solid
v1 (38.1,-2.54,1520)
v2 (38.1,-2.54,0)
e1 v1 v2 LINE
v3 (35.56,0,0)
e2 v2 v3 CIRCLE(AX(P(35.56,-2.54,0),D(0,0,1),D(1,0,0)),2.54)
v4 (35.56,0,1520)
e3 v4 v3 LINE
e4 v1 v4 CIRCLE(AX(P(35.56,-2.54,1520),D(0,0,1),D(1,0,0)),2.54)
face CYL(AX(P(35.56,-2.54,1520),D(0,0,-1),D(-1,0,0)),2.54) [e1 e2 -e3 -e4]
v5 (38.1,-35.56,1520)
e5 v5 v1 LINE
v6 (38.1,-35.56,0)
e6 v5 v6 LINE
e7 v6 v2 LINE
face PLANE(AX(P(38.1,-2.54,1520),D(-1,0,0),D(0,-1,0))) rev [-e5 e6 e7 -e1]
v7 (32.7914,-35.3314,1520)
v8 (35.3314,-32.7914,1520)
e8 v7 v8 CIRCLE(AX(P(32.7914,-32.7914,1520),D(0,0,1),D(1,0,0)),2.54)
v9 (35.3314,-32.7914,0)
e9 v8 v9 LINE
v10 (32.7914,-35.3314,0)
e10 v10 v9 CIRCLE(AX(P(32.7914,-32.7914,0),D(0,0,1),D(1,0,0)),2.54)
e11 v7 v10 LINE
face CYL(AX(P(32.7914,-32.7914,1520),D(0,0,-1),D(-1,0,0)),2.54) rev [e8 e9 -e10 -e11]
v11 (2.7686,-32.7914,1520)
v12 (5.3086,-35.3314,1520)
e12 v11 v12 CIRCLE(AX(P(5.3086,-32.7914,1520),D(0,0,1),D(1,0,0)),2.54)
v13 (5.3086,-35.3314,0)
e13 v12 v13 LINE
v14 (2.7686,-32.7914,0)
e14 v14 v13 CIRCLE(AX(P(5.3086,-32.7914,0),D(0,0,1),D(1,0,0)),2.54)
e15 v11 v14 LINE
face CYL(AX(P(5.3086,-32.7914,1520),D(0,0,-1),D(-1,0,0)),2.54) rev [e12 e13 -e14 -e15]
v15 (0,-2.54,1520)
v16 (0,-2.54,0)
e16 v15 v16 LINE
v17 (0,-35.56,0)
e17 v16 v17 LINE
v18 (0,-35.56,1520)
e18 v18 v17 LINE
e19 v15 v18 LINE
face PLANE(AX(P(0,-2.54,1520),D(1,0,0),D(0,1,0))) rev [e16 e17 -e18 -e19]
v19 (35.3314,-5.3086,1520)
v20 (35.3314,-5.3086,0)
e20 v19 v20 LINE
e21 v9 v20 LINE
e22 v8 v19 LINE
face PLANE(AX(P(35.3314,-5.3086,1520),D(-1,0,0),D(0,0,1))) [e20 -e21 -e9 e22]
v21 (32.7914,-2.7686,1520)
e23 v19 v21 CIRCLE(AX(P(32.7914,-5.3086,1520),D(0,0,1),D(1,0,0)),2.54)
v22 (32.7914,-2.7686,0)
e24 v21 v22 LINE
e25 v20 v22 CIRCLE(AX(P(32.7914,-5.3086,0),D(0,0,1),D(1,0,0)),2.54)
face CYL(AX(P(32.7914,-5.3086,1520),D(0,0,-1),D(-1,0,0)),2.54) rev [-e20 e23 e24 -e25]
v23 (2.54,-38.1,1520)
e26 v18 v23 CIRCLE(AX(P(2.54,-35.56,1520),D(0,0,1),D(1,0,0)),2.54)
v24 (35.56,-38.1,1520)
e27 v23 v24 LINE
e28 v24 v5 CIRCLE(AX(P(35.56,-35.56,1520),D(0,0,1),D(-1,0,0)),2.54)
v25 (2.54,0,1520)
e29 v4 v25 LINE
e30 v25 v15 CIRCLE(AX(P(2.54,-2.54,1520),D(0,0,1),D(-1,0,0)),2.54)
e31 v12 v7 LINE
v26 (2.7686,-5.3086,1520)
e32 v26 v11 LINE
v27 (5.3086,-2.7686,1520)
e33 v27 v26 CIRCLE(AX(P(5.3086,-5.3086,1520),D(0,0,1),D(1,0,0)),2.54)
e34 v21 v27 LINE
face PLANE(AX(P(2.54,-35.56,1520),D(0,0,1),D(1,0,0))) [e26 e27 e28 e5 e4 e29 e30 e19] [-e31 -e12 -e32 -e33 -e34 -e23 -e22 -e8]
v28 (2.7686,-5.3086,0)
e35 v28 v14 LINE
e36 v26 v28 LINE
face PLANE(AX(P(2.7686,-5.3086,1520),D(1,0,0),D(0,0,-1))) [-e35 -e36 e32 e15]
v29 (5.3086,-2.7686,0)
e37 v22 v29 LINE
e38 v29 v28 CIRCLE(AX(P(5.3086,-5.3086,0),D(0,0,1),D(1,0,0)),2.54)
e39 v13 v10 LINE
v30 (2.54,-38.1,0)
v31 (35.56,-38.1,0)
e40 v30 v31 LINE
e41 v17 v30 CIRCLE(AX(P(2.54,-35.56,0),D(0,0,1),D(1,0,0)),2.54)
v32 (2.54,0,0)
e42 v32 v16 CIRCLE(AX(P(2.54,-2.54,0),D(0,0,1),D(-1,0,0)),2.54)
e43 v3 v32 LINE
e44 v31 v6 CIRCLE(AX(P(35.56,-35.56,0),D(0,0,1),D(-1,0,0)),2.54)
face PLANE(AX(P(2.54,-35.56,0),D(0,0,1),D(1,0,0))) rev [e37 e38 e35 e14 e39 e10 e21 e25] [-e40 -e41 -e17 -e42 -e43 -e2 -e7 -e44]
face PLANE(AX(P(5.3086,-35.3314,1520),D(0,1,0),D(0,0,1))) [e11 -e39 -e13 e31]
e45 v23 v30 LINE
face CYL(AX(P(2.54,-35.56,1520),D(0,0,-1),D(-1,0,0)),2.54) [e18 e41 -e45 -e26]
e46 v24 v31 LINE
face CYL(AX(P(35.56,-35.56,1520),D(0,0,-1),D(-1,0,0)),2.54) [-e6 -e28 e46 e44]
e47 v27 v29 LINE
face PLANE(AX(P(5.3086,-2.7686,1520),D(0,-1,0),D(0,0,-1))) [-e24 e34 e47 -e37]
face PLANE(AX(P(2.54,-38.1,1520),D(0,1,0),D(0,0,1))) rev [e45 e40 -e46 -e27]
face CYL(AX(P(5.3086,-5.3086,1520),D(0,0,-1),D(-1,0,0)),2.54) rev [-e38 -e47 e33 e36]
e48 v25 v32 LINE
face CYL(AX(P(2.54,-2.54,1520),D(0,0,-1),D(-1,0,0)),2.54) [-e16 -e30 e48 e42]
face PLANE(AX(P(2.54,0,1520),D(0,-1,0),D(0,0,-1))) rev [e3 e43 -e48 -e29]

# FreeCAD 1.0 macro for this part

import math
import FreeCAD as App
import Part
import Sketcher
from FreeCAD import Vector
Q = App.Units.Quantity

doc = App.newDocument("Part")
body = doc.addObject("PartDesign::Body", "Body")

sketch1 = body.newObject("Sketcher::SketchObject", "Sketch")
sketch1.AttachmentSupport = (doc.getObject("XY_Plane"), [""])
sketch1.MapMode = "FlatFace"
sketch1.addGeometry([
    Part.LineSegment(Vector(35.6, 0, 0), Vector(2.5, 0, 0)),
    Part.ArcOfCircle(Part.Circle(Vector(2.5, -2.5, 0), Vector(0, 0, 1), 2.5), math.radians(90), math.radians(180)),
    Part.LineSegment(Vector(0, -2.5, 0), Vector(0, -35.6, 0)),
    Part.ArcOfCircle(Part.Circle(Vector(2.5, -35.6, 0), Vector(0, 0, 1), 2.5), math.radians(-180), math.radians(-90)),
    Part.LineSegment(Vector(2.5, -38.1, 0), Vector(35.6, -38.1, 0)),
    Part.ArcOfCircle(Part.Circle(Vector(35.6, -35.6, 0), Vector(0, 0, 1), 2.5), math.radians(-90), math.radians(0)),
    Part.LineSegment(Vector(38.1, -35.6, 0), Vector(38.1, -2.5, 0)),
    Part.ArcOfCircle(Part.Circle(Vector(35.6, -2.5, 0), Vector(0, 0, 1), 2.5), math.radians(0), math.radians(90)),
    Part.LineSegment(Vector(5.3, -2.8, 0), Vector(32.8, -2.8, 0)),
    Part.ArcOfCircle(Part.Circle(Vector(32.8, -5.3, 0), Vector(0, 0, 1), 2.5), math.radians(0), math.radians(90)),
    Part.LineSegment(Vector(35.3, -5.3, 0), Vector(35.3, -32.8, 0)),
    Part.ArcOfCircle(Part.Circle(Vector(32.8, -32.8, 0), Vector(0, 0, 1), 2.5), math.radians(-90), math.radians(0)),
    Part.LineSegment(Vector(32.8, -35.3, 0), Vector(5.3, -35.3, 0)),
    Part.ArcOfCircle(Part.Circle(Vector(5.3, -32.8, 0), Vector(0, 0, 1), 2.5), math.radians(-180), math.radians(-90)),
    Part.LineSegment(Vector(2.8, -32.8, 0), Vector(2.8, -5.3, 0)),
    Part.ArcOfCircle(Part.Circle(Vector(5.3, -5.3, 0), Vector(0, 0, 1), 2.5), math.radians(90), math.radians(180)),
], False)
sketch1.addConstraint([
    Sketcher.Constraint("Tangent", 0, 2, 1, 1),
    Sketcher.Constraint("Tangent", 1, 2, 2, 1),
    Sketcher.Constraint("Tangent", 2, 2, 3, 1),
    Sketcher.Constraint("Tangent", 3, 2, 4, 1),
    Sketcher.Constraint("Tangent", 4, 2, 5, 1),
    Sketcher.Constraint("Tangent", 5, 2, 6, 1),
    Sketcher.Constraint("Tangent", 6, 2, 7, 1),
    Sketcher.Constraint("Tangent", 7, 2, 0, 1),
    Sketcher.Constraint("Tangent", 8, 2, 9, 2),
    Sketcher.Constraint("Tangent", 9, 1, 10, 1),
    Sketcher.Constraint("Tangent", 10, 2, 11, 2),
    Sketcher.Constraint("Tangent", 11, 1, 12, 1),
    Sketcher.Constraint("Tangent", 12, 2, 13, 2),
    Sketcher.Constraint("Tangent", 13, 1, 14, 1),
    Sketcher.Constraint("Tangent", 14, 2, 15, 2),
    Sketcher.Constraint("Tangent", 15, 1, 8, 1),
    Sketcher.Constraint("Horizontal", 0),
    Sketcher.Constraint("Vertical", 2),
    Sketcher.Constraint("Horizontal", 4),
    Sketcher.Constraint("Vertical", 6),
    Sketcher.Constraint("Horizontal", 8),
    Sketcher.Constraint("Vertical", 10),
    Sketcher.Constraint("Horizontal", 12),
    Sketcher.Constraint("Vertical", 14),
    Sketcher.Constraint("Equal", 1, 3),
    Sketcher.Constraint("Equal", 3, 5),
    Sketcher.Constraint("Equal", 5, 7),
    Sketcher.Constraint("Equal", 7, 9),
    Sketcher.Constraint("Equal", 9, 11),
    Sketcher.Constraint("Equal", 11, 13),
    Sketcher.Constraint("Equal", 13, 15),
    Sketcher.Constraint("PointOnObject", 0, 2, -1),
    Sketcher.Constraint("PointOnObject", 1, 2, -2),
    Sketcher.Constraint("Equal", 4, 2),
    Sketcher.Constraint("Equal", 12, 10),
    Sketcher.Constraint("Radius", 1, Q("0.1 in")),
    Sketcher.Constraint("DistanceX", 0, 2, 0, 1, Q("1.3 in")),
    Sketcher.Constraint("DistanceX", 8, 1, 8, 2, Q("1.082 in")),
    Sketcher.Constraint("DistanceX", -1, 1, 9, 3, Q("1.291 in")),
    Sketcher.Constraint("DistanceY", 9, 3, -1, 1, Q("0.209 in")),
])
pad1 = body.newObject("PartDesign::Pad", "Pad")
pad1.Profile = sketch1
pad1.Length = 1520

doc.recompute()
